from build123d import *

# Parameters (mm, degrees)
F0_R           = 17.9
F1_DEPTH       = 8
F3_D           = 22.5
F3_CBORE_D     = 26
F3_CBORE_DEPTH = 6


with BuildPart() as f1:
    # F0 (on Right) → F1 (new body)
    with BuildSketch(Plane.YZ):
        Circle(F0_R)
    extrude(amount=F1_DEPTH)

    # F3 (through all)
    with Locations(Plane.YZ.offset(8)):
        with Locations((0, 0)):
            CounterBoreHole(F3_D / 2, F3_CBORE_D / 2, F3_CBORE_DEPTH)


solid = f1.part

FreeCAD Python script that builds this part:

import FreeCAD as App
import Part
import Sketcher

V = App.Vector

doc = App.newDocument("Part")
params = doc.addObject("Spreadsheet::Sheet", "Params")
for row, (alias, value) in enumerate([
    ("sketch1_diameter", "35.8 mm"),
    ("pad1_length", "8 mm"),
    ("sketch2_diameter", "22.5 mm"),
    ("hole_diameter", "22.5 mm"),
    ("hole_cbore_diameter", "26 mm"),
    ("hole_cbore_depth", "6 mm"),
], start=1):
    params.set(f"A{row}", alias)
    params.set(f"B{row}", "=" + value)
    params.setAlias(f"B{row}", alias)

body = doc.addObject("PartDesign::Body", "Body")

sketch1 = body.newObject("Sketcher::SketchObject", "Sketch")
sketch1.AttachmentSupport = (doc.getObject("YZ_Plane"), [""])
sketch1.MapMode = "FlatFace"
sketch1.addGeometry(Part.Circle(V(0, 0, 0), V(0, 0, 1), 17.9), False)
sketch1.addConstraint([
    Sketcher.Constraint("Coincident", 0, 3, -1, 1),
    Sketcher.Constraint("Diameter", 0, 35.8),
])
sketch1.setExpression("Constraints[1]", "Params.sketch1_diameter")
pad1 = body.newObject("PartDesign::Pad", "Pad")
pad1.Profile = sketch1
pad1.setExpression("Length", "Params.pad1_length")

sketch2 = body.newObject("Sketcher::SketchObject", "Sketch001")
sketch2.AttachmentSupport = (doc.getObject("YZ_Plane"), [""])
sketch2.MapMode = "FlatFace"
sketch2.AttachmentOffset = App.Placement(V(0, 0, 8), App.Rotation())
sketch2.addGeometry(Part.Circle(V(0, 0, 0), V(0, 0, 1), 11.25), False)
sketch2.addConstraint([
    Sketcher.Constraint("Coincident", 0, 3, -1, 1),
    Sketcher.Constraint("Diameter", 0, 22.5),
])
sketch2.setExpression("Constraints[1]", "Params.sketch2_diameter")
doc.recompute()
hole = body.newObject("PartDesign::Hole", "Hole")
hole.Profile = sketch2
hole.ThreadType = "None"
hole.setExpression("Diameter", "Params.hole_diameter")
hole.DepthType = "ThroughAll"
hole.HoleCutType = "Counterbore"
hole.setExpression("HoleCutDiameter", "Params.hole_cbore_diameter")
hole.setExpression("HoleCutDepth", "Params.hole_cbore_depth")

doc.recompute()
